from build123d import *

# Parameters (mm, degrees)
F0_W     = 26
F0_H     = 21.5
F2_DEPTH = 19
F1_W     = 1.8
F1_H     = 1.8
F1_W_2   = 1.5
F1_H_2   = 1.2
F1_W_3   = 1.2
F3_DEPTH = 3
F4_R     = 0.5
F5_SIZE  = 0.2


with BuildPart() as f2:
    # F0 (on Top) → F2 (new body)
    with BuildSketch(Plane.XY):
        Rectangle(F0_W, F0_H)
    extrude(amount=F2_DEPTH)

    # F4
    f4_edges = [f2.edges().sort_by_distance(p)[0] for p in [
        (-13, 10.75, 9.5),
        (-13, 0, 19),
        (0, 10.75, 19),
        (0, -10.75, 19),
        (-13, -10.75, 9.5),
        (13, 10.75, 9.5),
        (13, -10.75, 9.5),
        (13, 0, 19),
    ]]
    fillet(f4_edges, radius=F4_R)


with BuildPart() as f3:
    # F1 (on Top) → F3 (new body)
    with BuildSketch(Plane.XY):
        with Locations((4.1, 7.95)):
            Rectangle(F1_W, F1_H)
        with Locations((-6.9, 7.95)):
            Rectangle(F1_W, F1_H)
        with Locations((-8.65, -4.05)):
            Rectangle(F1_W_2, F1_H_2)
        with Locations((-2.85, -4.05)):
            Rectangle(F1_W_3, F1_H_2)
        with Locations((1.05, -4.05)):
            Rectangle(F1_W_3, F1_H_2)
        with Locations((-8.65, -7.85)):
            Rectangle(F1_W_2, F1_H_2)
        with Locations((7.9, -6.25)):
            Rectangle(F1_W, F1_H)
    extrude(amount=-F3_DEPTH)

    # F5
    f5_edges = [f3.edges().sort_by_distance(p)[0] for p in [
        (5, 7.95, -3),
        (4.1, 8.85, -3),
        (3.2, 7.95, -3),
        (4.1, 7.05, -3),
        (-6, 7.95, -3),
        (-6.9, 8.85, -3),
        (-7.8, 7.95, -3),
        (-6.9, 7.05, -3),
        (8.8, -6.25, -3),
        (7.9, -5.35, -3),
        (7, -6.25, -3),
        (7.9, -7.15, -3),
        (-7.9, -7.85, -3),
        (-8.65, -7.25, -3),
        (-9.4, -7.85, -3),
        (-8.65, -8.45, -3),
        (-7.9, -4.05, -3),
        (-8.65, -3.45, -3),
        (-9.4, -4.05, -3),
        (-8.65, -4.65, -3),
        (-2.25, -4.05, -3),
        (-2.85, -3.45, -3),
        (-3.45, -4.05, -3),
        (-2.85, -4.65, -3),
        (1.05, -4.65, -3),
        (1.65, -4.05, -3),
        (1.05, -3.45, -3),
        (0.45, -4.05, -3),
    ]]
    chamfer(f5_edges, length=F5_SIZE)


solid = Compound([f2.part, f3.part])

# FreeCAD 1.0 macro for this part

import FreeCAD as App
import Part
import Sketcher


def edges_at(feature, points):
    """Names of the edges that pass closest to the given points."""
    edges = feature.Shape.Edges
    near = lambda p: min(range(len(edges)), key=lambda i: edges[i].distToShape(Part.Vertex(*p))[0])
    return sorted({f"Edge{near(p) + 1}" for p in points})

doc = App.newDocument("Part")
params = doc.addObject("Spreadsheet::Sheet", "Params")
for row, (alias, value) in enumerate([
    ("sketch1_width", "26 mm"),
    ("sketch1_height", "21.5 mm"),
    ("pad1_length", "19 mm"),
    ("fillet_radius", "0.5 mm"),
    ("sketch2_width", "1.8 mm"),
    ("sketch2_width2", "1.5 mm"),
    ("sketch2_width3", "1.2 mm"),
    ("pad2_length", "3 mm"),
    ("chamfer_size", "0.2 mm"),
], start=1):
    params.set(f"A{row}", alias)
    params.set(f"B{row}", "=" + value)
    params.setAlias(f"B{row}", alias)

body = doc.addObject("PartDesign::Body", "Body")

sketch1 = body.newObject("Sketcher::SketchObject", "Sketch")
sketch1.AttachmentSupport = (doc.getObject("XY_Plane"), [""])
sketch1.MapMode = "FlatFace"
sketch1.addGeometry([
    Part.LineSegment(App.Vector(-13, 11, 0), App.Vector(-13, -11, 0)),
    Part.LineSegment(App.Vector(-13, -11, 0), App.Vector(13, -11, 0)),
    Part.LineSegment(App.Vector(13, -11, 0), App.Vector(13, 11, 0)),
    Part.LineSegment(App.Vector(13, 11, 0), App.Vector(-13, 11, 0)),
], False)
sketch1.addConstraint([
    Sketcher.Constraint("Coincident", 0, 2, 1, 1),
    Sketcher.Constraint("Coincident", 1, 2, 2, 1),
    Sketcher.Constraint("Coincident", 2, 2, 3, 1),
    Sketcher.Constraint("Coincident", 3, 2, 0, 1),
    Sketcher.Constraint("Vertical", 0),
    Sketcher.Constraint("Horizontal", 1),
    Sketcher.Constraint("Vertical", 2),
    Sketcher.Constraint("Horizontal", 3),
    Sketcher.Constraint("Symmetric", 0, 2, 2, 2, -1, 1),
    Sketcher.Constraint("DistanceX", 1, 1, 1, 2, 26.0),
    Sketcher.Constraint("DistanceY", 0, 2, 0, 1, 21.5),
])
sketch1.setExpression("Constraints[9]", "Params.sketch1_width")
sketch1.setExpression("Constraints[10]", "Params.sketch1_height")
pad1 = body.newObject("PartDesign::Pad", "Pad")
pad1.Profile = sketch1
pad1.setExpression("Length", "Params.pad1_length")
doc.recompute()

fillet = body.newObject("PartDesign::Fillet", "Fillet")
fillet.Base = (pad1, edges_at(pad1, [
    (-13, 10.75, 9.5),
    (-13, 0, 19),
    (0, 10.75, 19),
    (0, -10.75, 19),
    (-13, -10.75, 9.5),
    (13, 10.75, 9.5),
    (13, -10.75, 9.5),
    (13, 0, 19),
]))
fillet.setExpression("Radius", "Params.fillet_radius")
body2 = doc.addObject("PartDesign::Body", "Body001")
body2.AllowCompound = True

sketch2 = body2.newObject("Sketcher::SketchObject", "Sketch001")
sketch2.AttachmentSupport = (doc.getObject("XY_Plane001"), [""])
sketch2.MapMode = "FlatFace"
sketch2.addGeometry([
    Part.LineSegment(App.Vector(3.2, 8.8, 0), App.Vector(3.2, 7, 0)),
    Part.LineSegment(App.Vector(3.2, 7, 0), App.Vector(5, 7, 0)),
    Part.LineSegment(App.Vector(5, 7, 0), App.Vector(5, 8.8, 0)),
    Part.LineSegment(App.Vector(5, 8.8, 0), App.Vector(3.2, 8.8, 0)),
    Part.LineSegment(App.Vector(-7.8, 8.8, 0), App.Vector(-7.8, 7, 0)),
    Part.LineSegment(App.Vector(-7.8, 7, 0), App.Vector(-6, 7, 0)),
    Part.LineSegment(App.Vector(-6, 7, 0), App.Vector(-6, 8.8, 0)),
    Part.LineSegment(App.Vector(-6, 8.8, 0), App.Vector(-7.8, 8.8, 0)),
    Part.LineSegment(App.Vector(-9.4, -3.5, 0), App.Vector(-9.4, -4.7, 0)),
    Part.LineSegment(App.Vector(-9.4, -4.7, 0), App.Vector(-7.9, -4.7, 0)),
    Part.LineSegment(App.Vector(-7.9, -4.7, 0), App.Vector(-7.9, -3.5, 0)),
    Part.LineSegment(App.Vector(-7.9, -3.5, 0), App.Vector(-9.4, -3.5, 0)),
    Part.LineSegment(App.Vector(-3.5, -3.5, 0), App.Vector(-3.5, -4.7, 0)),
    Part.LineSegment(App.Vector(-3.5, -4.7, 0), App.Vector(-2.2, -4.7, 0)),
    Part.LineSegment(App.Vector(-2.2, -4.7, 0), App.Vector(-2.2, -3.5, 0)),
    Part.LineSegment(App.Vector(-2.2, -3.5, 0), App.Vector(-3.5, -3.5, 0)),
    Part.LineSegment(App.Vector(0.5, -3.5, 0), App.Vector(0.5, -4.7, 0)),
    Part.LineSegment(App.Vector(0.5, -4.7, 0), App.Vector(1.6, -4.7, 0)),
    Part.LineSegment(App.Vector(1.6, -4.7, 0), App.Vector(1.6, -3.5, 0)),
    Part.LineSegment(App.Vector(1.6, -3.5, 0), App.Vector(0.5, -3.5, 0)),
    Part.LineSegment(App.Vector(-9.4, -7.2, 0), App.Vector(-9.4, -8.4, 0)),
    Part.LineSegment(App.Vector(-9.4, -8.4, 0), App.Vector(-7.9, -8.4, 0)),
    Part.LineSegment(App.Vector(-7.9, -8.4, 0), App.Vector(-7.9, -7.2, 0)),
    Part.LineSegment(App.Vector(-7.9, -7.2, 0), App.Vector(-9.4, -7.2, 0)),
    Part.LineSegment(App.Vector(7, -5.3, 0), App.Vector(7, -7.2, 0)),
    Part.LineSegment(App.Vector(7, -7.2, 0), App.Vector(8.8, -7.2, 0)),
    Part.LineSegment(App.Vector(8.8, -7.2, 0), App.Vector(8.8, -5.3, 0)),
    Part.LineSegment(App.Vector(8.8, -5.3, 0), App.Vector(7, -5.3, 0)),
], False)
sketch2.addConstraint([
    Sketcher.Constraint("Coincident", 0, 2, 1, 1),
    Sketcher.Constraint("Coincident", 1, 2, 2, 1),
    Sketcher.Constraint("Coincident", 2, 2, 3, 1),
    Sketcher.Constraint("Coincident", 3, 2, 0, 1),
    Sketcher.Constraint("Coincident", 4, 2, 5, 1),
    Sketcher.Constraint("Coincident", 5, 2, 6, 1),
    Sketcher.Constraint("Coincident", 6, 2, 7, 1),
    Sketcher.Constraint("Coincident", 7, 2, 4, 1),
    Sketcher.Constraint("Coincident", 8, 2, 9, 1),
    Sketcher.Constraint("Coincident", 9, 2, 10, 1),
    Sketcher.Constraint("Coincident", 10, 2, 11, 1),
    Sketcher.Constraint("Coincident", 11, 2, 8, 1),
    Sketcher.Constraint("Coincident", 12, 2, 13, 1),
    Sketcher.Constraint("Coincident", 13, 2, 14, 1),
    Sketcher.Constraint("Coincident", 14, 2, 15, 1),
    Sketcher.Constraint("Coincident", 15, 2, 12, 1),
    Sketcher.Constraint("Coincident", 16, 2, 17, 1),
    Sketcher.Constraint("Coincident", 17, 2, 18, 1),
    Sketcher.Constraint("Coincident", 18, 2, 19, 1),
    Sketcher.Constraint("Coincident", 19, 2, 16, 1),
    Sketcher.Constraint("Coincident", 20, 2, 21, 1),
    Sketcher.Constraint("Coincident", 21, 2, 22, 1),
    Sketcher.Constraint("Coincident", 22, 2, 23, 1),
    Sketcher.Constraint("Coincident", 23, 2, 20, 1),
    Sketcher.Constraint("Coincident", 24, 2, 25, 1),
    Sketcher.Constraint("Coincident", 25, 2, 26, 1),
    Sketcher.Constraint("Coincident", 26, 2, 27, 1),
    Sketcher.Constraint("Coincident", 27, 2, 24, 1),
    Sketcher.Constraint("Vertical", 0),
    Sketcher.Constraint("Horizontal", 1),
    Sketcher.Constraint("Vertical", 2),
    Sketcher.Constraint("Horizontal", 3),
    Sketcher.Constraint("Vertical", 4),
    Sketcher.Constraint("Horizontal", 5),
    Sketcher.Constraint("Vertical", 6),
    Sketcher.Constraint("Horizontal", 7),
    Sketcher.Constraint("Vertical", 8),
    Sketcher.Constraint("Horizontal", 9),
    Sketcher.Constraint("Vertical", 10),
    Sketcher.Constraint("Horizontal", 11),
    Sketcher.Constraint("Vertical", 12),
    Sketcher.Constraint("Horizontal", 13),
    Sketcher.Constraint("Vertical", 14),
    Sketcher.Constraint("Horizontal", 15),
    Sketcher.Constraint("Vertical", 16),
    Sketcher.Constraint("Horizontal", 17),
    Sketcher.Constraint("Vertical", 18),
    Sketcher.Constraint("Horizontal", 19),
    Sketcher.Constraint("Vertical", 20),
    Sketcher.Constraint("Horizontal", 21),
    Sketcher.Constraint("Vertical", 22),
    Sketcher.Constraint("Horizontal", 23),
    Sketcher.Constraint("Vertical", 24),
    Sketcher.Constraint("Horizontal", 25),
    Sketcher.Constraint("Vertical", 26),
    Sketcher.Constraint("Horizontal", 27),
    Sketcher.Constraint("Horizontal", 1, 2, 4, 2),
    Sketcher.Constraint("Horizontal", 3, 2, 6, 2),
    Sketcher.Constraint("Horizontal", 9, 2, 12, 2),
    Sketcher.Constraint("Horizontal", 11, 2, 14, 2),
    Sketcher.Constraint("Horizontal", 13, 2, 16, 2),
    Sketcher.Constraint("Horizontal", 15, 2, 18, 2),
    Sketcher.Constraint("Vertical", 11, 2, 20, 2),
    Sketcher.Constraint("Vertical", 10, 2, 21, 2),
    Sketcher.Constraint("Equal", 3, 5),
    Sketcher.Constraint("Equal", 15, 17),
    Sketcher.Constraint("Equal", 7, 25),
    Sketcher.Constraint("Equal", 27, 0),
    Sketcher.Constraint("Equal", 19, 8),
    Sketcher.Constraint("Equal", 18, 20),
    Sketcher.Constraint("Equal", 6, 24),
    Sketcher.Constraint("DistanceX", 1, 1, 1, 2, 1.8),
    Sketcher.Constraint("DistanceX", 9, 1, 9, 2, 1.5),
    Sketcher.Constraint("DistanceX", 13, 1, 13, 2, 1.2),
    Sketcher.Constraint("DistanceX", -1, 1, 1, 2, 5.0),
    Sketcher.Constraint("DistanceX", 5, 2, -1, 1, 6.0),
    Sketcher.Constraint("DistanceX", -1, 1, 24, 2, 7.0),
    Sketcher.Constraint("DistanceY", 20, 2, 11, 2, 5.0),
    Sketcher.Constraint("DistanceX", 8, 2, -1, 1, 9.4),
    Sketcher.Constraint("DistanceY", 8, 2, 4, 2, 11.7),
    Sketcher.Constraint("DistanceX", 13, 2, 16, 2, 2.7),
    Sketcher.Constraint("DistanceY", 24, 2, 17, 2, 2.5),
    Sketcher.Constraint("DistanceY", -1, 1, 0, 2, 7.05),
    Sketcher.Constraint("DistanceX", 12, 2, -1, 1, 3.45),
])
sketch2.setExpression("Constraints[71]", "Params.sketch2_width")
sketch2.setExpression("Constraints[72]", "Params.sketch2_width2")
sketch2.setExpression("Constraints[73]", "Params.sketch2_width3")
pad2 = body2.newObject("PartDesign::Pad", "Pad001")
pad2.Profile = sketch2
pad2.setExpression("Length", "Params.pad2_length")
pad2.Reversed = True
doc.recompute()

chamfer = body2.newObject("PartDesign::Chamfer", "Chamfer")
chamfer.Base = (pad2, edges_at(pad2, [
    (5, 7.95, -3),
    (4.1, 8.85, -3),
    (3.2, 7.95, -3),
    (4.1, 7.05, -3),
    (-6, 7.95, -3),
    (-6.9, 8.85, -3),
    (-7.8, 7.95, -3),
    (-6.9, 7.05, -3),
    (8.8, -6.25, -3),
    (7.9, -5.35, -3),
    (7, -6.25, -3),
    (7.9, -7.15, -3),
    (-7.9, -7.85, -3),
    (-8.65, -7.25, -3),
    (-9.4, -7.85, -3),
    (-8.65, -8.45, -3),
    (-7.9, -4.05, -3),
    (-8.65, -3.45, -3),
    (-9.4, -4.05, -3),
    (-8.65, -4.65, -3),
    (-2.25, -4.05, -3),
    (-2.85, -3.45, -3),
    (-3.45, -4.05, -3),
    (-2.85, -4.65, -3),
    (1.05, -4.65, -3),
    (1.65, -4.05, -3),
    (1.05, -3.45, -3),
    (0.45, -4.05, -3),
]))
chamfer.setExpression("Size", "Params.chamfer_size")

doc.recompute()
